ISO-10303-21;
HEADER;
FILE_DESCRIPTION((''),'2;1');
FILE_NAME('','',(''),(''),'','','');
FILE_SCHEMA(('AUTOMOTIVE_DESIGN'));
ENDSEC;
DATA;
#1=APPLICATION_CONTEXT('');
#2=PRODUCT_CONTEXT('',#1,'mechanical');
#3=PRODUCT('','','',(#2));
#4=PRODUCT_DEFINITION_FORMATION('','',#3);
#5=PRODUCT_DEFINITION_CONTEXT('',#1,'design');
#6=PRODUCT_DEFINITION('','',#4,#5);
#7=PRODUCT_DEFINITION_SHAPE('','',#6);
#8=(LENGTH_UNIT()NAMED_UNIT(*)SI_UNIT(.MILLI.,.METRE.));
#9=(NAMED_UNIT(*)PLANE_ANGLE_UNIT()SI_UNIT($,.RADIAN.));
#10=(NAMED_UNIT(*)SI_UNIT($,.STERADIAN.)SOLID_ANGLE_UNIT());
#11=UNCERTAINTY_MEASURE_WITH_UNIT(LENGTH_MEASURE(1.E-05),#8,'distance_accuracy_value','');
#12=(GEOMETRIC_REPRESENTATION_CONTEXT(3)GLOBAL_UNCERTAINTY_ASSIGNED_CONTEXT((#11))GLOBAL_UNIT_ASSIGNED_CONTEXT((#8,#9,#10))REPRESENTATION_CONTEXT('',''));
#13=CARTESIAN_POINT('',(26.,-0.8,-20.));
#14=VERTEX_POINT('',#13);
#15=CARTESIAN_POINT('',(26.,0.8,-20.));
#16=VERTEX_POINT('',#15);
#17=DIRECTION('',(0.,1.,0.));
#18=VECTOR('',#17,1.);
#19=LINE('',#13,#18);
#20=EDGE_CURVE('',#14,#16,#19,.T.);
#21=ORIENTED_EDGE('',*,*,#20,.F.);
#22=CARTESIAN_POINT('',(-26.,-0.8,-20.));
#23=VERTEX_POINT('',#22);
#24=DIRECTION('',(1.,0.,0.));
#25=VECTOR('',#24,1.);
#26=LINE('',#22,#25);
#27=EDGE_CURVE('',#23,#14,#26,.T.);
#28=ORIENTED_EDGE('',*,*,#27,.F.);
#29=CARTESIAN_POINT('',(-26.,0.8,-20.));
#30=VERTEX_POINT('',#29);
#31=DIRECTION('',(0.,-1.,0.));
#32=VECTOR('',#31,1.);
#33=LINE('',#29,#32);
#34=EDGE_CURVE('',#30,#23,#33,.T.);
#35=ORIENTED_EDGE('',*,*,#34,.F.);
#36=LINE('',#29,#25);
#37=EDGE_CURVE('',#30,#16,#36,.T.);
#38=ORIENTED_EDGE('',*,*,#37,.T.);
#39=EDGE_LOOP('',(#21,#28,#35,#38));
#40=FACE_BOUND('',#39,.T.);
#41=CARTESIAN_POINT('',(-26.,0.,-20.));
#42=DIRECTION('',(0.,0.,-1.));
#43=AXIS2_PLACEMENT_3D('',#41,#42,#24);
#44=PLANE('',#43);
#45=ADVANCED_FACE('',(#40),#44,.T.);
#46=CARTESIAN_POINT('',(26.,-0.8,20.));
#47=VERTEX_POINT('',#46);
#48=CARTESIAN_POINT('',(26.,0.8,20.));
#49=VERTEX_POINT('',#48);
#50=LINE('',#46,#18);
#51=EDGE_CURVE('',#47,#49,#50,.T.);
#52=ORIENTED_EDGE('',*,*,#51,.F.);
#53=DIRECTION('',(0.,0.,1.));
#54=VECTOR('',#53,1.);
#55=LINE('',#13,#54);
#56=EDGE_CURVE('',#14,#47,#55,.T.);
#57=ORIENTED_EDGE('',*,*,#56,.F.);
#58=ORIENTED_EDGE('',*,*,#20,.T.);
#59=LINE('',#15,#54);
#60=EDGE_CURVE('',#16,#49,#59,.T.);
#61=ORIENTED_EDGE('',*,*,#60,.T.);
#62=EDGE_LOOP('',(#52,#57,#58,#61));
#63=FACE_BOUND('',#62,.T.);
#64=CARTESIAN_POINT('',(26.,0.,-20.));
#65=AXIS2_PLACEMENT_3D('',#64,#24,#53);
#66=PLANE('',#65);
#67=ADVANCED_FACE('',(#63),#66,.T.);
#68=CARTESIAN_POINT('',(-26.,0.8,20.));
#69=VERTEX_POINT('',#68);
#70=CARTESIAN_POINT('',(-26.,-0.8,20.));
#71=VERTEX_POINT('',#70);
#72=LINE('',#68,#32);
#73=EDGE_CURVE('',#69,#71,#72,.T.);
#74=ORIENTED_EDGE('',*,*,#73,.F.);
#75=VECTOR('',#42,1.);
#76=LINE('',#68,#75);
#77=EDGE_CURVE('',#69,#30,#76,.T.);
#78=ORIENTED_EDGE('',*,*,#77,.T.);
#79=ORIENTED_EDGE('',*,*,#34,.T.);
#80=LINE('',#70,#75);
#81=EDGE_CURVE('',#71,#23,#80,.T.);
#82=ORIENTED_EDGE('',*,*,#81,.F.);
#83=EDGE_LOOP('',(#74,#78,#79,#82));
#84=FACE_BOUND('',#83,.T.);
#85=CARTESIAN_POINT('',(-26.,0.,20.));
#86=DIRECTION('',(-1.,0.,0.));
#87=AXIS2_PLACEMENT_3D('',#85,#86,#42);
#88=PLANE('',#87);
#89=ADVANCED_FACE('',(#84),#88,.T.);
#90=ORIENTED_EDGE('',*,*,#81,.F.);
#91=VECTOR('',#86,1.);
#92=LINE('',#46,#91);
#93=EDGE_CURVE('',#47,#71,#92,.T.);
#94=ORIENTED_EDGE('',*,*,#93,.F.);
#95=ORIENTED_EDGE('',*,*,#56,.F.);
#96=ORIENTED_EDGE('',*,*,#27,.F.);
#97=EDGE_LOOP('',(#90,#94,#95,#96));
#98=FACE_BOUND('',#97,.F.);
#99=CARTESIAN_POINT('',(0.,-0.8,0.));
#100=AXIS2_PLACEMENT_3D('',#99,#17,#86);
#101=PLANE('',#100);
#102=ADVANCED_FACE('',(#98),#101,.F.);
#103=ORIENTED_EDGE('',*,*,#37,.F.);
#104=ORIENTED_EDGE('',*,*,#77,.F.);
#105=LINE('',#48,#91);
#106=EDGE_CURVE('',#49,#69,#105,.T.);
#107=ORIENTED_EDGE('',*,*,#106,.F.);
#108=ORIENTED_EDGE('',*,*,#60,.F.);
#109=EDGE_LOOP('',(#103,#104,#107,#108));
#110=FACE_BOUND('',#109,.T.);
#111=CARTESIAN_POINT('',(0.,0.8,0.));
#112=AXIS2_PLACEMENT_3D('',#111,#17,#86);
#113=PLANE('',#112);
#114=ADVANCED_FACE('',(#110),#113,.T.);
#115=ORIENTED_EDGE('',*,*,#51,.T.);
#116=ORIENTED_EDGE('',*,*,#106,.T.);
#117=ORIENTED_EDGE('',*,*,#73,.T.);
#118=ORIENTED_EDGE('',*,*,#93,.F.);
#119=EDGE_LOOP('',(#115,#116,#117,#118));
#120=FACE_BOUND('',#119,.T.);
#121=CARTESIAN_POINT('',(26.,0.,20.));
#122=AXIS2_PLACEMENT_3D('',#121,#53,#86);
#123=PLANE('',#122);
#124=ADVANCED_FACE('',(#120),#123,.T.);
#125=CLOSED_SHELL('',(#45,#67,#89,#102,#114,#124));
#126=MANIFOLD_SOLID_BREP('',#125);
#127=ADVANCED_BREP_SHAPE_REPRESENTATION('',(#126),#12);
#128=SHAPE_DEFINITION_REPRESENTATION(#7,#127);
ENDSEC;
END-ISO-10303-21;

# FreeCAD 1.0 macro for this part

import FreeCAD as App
import Part
import Sketcher
from FreeCAD import Vector

doc = App.newDocument("Part")
body = doc.addObject("PartDesign::Body", "Body")

# Sketch on XZ plane
sketch1 = body.newObject("Sketcher::SketchObject", "Sketch")
sketch1.AttachmentSupport = (doc.getObject("XZ_Plane"), [""])
sketch1.MapMode = "FlatFace"
sketch1.addGeometry(Part.LineSegment(Vector(-26, 20, 0), Vector(26, 20, 0)), False)
sketch1.addGeometry(Part.LineSegment(Vector(26, 20, 0), Vector(26, -20, 0)), False)
sketch1.addGeometry(Part.LineSegment(Vector(26, -20, 0), Vector(-26, -20, 0)), False)
sketch1.addGeometry(Part.LineSegment(Vector(-26, -20, 0), Vector(-26, 20, 0)), False)
sketch1.addConstraint(Sketcher.Constraint("Coincident", 0, 2, 1, 1))
sketch1.addConstraint(Sketcher.Constraint("Coincident", 1, 2, 2, 1))
sketch1.addConstraint(Sketcher.Constraint("Coincident", 2, 2, 3, 1))
sketch1.addConstraint(Sketcher.Constraint("Coincident", 3, 2, 0, 1))
sketch1.addConstraint(Sketcher.Constraint("Horizontal", 0))
sketch1.addConstraint(Sketcher.Constraint("Vertical", 1))
sketch1.addConstraint(Sketcher.Constraint("Horizontal", 2))
sketch1.addConstraint(Sketcher.Constraint("Vertical", 3))
sketch1.addConstraint(Sketcher.Constraint("Symmetric", 0, 2, 2, 2, -1, 1))
sketch1.addConstraint(Sketcher.Constraint("DistanceX", 0, 1, 0, 2, 52.0))
sketch1.addConstraint(Sketcher.Constraint("DistanceY", 1, 2, 1, 1, 40.0))
pad1 = body.newObject("PartDesign::Pad", "Pad")
pad1.Profile = sketch1
pad1.Length = 1.6
pad1.Midplane = True

doc.recompute()
